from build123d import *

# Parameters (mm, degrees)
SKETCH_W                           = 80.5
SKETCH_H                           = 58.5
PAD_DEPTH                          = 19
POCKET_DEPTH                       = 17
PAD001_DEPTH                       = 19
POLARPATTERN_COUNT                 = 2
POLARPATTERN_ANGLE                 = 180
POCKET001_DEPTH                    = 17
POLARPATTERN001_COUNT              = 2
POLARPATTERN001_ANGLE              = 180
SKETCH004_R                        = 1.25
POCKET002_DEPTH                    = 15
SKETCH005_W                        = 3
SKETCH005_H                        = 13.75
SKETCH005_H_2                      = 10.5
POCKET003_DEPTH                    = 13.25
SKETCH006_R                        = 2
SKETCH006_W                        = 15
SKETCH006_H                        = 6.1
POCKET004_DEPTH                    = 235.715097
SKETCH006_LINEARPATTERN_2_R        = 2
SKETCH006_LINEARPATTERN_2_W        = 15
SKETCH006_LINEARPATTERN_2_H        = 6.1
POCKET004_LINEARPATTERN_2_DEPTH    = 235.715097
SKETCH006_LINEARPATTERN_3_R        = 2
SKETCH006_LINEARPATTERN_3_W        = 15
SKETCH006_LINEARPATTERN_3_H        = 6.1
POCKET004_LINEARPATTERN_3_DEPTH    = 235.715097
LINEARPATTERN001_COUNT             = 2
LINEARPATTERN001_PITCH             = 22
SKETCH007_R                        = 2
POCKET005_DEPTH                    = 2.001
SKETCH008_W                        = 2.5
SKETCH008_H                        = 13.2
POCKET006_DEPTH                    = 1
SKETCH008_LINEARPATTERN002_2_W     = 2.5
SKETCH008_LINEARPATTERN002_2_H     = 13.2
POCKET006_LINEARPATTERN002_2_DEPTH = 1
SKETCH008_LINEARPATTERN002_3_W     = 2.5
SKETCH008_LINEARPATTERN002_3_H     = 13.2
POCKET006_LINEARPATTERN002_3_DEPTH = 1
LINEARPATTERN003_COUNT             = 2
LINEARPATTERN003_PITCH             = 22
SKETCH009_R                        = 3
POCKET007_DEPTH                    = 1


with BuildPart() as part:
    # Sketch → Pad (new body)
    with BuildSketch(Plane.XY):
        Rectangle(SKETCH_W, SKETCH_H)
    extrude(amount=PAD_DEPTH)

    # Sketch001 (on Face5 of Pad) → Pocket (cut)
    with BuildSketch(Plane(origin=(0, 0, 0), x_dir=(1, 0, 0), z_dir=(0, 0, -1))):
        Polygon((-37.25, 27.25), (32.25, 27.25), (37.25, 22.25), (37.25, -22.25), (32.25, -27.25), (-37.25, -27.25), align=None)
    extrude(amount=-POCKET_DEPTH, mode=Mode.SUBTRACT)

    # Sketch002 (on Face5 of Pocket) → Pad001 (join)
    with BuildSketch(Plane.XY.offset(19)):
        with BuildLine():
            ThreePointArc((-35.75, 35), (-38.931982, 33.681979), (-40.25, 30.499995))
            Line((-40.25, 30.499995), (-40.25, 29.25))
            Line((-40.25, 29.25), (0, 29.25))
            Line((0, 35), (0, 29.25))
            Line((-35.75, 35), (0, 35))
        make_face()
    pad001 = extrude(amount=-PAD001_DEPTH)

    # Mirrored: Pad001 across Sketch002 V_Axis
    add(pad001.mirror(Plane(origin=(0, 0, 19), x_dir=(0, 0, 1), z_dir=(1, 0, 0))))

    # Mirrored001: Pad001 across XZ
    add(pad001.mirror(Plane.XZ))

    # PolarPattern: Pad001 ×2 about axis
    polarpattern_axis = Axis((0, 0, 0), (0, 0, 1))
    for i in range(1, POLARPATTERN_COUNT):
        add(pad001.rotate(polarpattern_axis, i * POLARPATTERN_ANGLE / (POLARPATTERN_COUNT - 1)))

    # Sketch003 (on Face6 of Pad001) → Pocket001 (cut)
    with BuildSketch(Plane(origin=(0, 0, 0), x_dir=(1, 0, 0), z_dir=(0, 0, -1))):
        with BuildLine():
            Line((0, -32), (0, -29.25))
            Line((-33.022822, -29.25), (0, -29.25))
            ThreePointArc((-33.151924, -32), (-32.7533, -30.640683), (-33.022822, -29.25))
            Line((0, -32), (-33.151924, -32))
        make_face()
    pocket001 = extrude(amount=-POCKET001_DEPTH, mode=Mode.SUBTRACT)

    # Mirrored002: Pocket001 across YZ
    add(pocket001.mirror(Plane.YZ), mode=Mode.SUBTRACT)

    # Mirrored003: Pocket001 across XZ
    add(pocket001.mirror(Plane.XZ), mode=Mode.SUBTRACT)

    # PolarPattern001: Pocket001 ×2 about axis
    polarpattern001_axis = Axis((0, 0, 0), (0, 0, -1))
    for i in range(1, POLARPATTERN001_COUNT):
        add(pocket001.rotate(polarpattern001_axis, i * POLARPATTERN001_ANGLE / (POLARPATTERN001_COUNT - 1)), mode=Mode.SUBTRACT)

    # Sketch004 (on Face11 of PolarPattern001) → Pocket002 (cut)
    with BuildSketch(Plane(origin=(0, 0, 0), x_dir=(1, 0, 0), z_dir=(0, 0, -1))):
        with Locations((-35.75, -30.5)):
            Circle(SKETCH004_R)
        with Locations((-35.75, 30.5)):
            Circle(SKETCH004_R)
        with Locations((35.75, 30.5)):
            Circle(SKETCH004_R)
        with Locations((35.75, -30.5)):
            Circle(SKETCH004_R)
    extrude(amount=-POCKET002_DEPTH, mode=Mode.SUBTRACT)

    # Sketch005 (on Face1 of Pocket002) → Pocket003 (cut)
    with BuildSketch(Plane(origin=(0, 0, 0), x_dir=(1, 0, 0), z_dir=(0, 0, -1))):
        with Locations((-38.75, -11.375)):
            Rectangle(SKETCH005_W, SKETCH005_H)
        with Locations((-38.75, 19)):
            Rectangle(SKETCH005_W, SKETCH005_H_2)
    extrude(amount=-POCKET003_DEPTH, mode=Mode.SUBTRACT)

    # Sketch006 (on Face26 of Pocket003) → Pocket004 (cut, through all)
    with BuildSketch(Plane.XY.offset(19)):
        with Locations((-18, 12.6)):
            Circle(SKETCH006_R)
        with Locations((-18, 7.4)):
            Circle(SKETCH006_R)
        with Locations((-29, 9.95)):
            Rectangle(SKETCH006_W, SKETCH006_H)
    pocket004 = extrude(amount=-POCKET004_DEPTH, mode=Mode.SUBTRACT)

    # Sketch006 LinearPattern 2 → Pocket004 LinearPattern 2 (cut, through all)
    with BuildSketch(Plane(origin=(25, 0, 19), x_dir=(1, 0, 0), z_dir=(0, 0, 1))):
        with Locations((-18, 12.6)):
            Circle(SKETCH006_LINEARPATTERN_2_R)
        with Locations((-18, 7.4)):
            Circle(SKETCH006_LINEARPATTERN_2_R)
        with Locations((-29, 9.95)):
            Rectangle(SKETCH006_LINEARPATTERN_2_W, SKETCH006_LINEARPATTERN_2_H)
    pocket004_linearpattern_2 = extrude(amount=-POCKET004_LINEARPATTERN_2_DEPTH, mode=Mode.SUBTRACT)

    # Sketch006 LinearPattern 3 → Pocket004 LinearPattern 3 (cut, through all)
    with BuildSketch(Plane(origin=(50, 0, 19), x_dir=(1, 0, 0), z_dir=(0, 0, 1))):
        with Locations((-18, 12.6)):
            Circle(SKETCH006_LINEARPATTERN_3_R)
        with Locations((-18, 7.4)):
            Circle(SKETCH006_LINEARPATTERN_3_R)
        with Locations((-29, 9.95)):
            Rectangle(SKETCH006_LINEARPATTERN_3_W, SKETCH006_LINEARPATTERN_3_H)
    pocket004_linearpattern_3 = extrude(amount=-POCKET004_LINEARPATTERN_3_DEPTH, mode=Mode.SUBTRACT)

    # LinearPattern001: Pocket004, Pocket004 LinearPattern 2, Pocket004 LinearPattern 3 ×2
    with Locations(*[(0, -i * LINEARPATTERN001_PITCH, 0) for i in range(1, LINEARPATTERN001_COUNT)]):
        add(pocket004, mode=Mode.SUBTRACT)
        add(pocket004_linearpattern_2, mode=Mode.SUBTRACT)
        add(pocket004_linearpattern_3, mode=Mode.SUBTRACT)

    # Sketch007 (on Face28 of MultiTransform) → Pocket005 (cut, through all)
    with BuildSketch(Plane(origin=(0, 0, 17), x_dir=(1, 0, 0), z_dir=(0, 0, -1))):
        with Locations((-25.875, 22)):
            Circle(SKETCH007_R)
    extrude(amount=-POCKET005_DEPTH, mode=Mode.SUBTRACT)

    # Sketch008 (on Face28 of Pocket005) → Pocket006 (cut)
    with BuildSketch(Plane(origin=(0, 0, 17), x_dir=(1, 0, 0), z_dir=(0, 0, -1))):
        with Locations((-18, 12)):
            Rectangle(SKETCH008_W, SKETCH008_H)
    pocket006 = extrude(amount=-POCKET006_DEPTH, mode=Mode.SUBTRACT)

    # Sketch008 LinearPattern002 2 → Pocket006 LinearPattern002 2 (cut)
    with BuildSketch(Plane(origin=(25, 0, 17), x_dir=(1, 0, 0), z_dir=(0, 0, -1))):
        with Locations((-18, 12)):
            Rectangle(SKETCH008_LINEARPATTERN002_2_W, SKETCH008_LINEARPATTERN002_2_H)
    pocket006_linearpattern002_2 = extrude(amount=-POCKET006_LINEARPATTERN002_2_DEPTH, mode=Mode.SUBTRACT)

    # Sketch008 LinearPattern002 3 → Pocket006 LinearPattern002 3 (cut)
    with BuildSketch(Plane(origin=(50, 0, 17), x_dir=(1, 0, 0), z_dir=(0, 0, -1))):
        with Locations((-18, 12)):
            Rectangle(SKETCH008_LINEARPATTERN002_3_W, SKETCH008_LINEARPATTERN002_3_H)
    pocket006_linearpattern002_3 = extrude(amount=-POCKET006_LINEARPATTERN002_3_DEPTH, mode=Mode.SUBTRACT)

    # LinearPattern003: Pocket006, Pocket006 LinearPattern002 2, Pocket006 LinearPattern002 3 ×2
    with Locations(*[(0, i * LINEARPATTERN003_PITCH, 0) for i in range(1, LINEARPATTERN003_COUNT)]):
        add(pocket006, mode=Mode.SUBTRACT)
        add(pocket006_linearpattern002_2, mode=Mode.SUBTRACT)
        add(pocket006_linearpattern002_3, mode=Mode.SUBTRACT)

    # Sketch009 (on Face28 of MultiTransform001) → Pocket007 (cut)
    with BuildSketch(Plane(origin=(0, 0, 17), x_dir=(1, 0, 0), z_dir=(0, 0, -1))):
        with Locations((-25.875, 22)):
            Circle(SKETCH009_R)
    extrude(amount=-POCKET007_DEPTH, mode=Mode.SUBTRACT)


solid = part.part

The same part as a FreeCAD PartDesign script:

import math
import FreeCAD as App
import Part
import Sketcher

V = App.Vector

doc = App.newDocument("Part")
body = doc.addObject("PartDesign::Body", "Body")

sketch1 = body.newObject("Sketcher::SketchObject", "Sketch")
sketch1.AttachmentSupport = (doc.getObject("XY_Plane"), [""])
sketch1.MapMode = "FlatFace"
sketch1.addGeometry(Part.LineSegment(V(-40, 29, 0), V(-40, -29, 0)), False)
sketch1.addGeometry(Part.LineSegment(V(-40, -29, 0), V(40, -29, 0)), False)
sketch1.addGeometry(Part.LineSegment(V(40, -29, 0), V(40, 29, 0)), False)
sketch1.addGeometry(Part.LineSegment(V(40, 29, 0), V(-40, 29, 0)), False)
sketch1.addConstraint(Sketcher.Constraint("Coincident", 0, 2, 1, 1))
sketch1.addConstraint(Sketcher.Constraint("Coincident", 1, 2, 2, 1))
sketch1.addConstraint(Sketcher.Constraint("Coincident", 2, 2, 3, 1))
sketch1.addConstraint(Sketcher.Constraint("Coincident", 3, 2, 0, 1))
sketch1.addConstraint(Sketcher.Constraint("Vertical", 0))
sketch1.addConstraint(Sketcher.Constraint("Horizontal", 1))
sketch1.addConstraint(Sketcher.Constraint("Vertical", 2))
sketch1.addConstraint(Sketcher.Constraint("Horizontal", 3))
sketch1.addConstraint(Sketcher.Constraint("Symmetric", 0, 2, 2, 2, -1, 1))
sketch1.addConstraint(Sketcher.Constraint("DistanceX", 1, 1, 1, 2, 80.5))
sketch1.addConstraint(Sketcher.Constraint("DistanceY", 0, 2, 0, 1, 58.5))
pad1 = body.newObject("PartDesign::Pad", "Pad")
pad1.Profile = sketch1
pad1.Length = 19

sketch2 = body.newObject("Sketcher::SketchObject", "Sketch001")
sketch2.AttachmentSupport = (doc.getObject("XY_Plane"), [""])
sketch2.MapMode = "FlatFace"
sketch2.addGeometry(Part.LineSegment(V(32, -27, 0), V(-37, -27, 0)), False)
sketch2.addGeometry(Part.LineSegment(V(-37, -27, 0), V(-37, 27, 0)), False)
sketch2.addGeometry(Part.LineSegment(V(-37, 27, 0), V(32, 27, 0)), False)
sketch2.addGeometry(Part.LineSegment(V(32, 27, 0), V(37, 22, 0)), False)
sketch2.addGeometry(Part.LineSegment(V(37, 22, 0), V(37, -22, 0)), False)
sketch2.addGeometry(Part.LineSegment(V(37, -22, 0), V(32, -27, 0)), False)
sketch2.addConstraint(Sketcher.Constraint("Coincident", 0, 2, 1, 1))
sketch2.addConstraint(Sketcher.Constraint("Coincident", 1, 2, 2, 1))
sketch2.addConstraint(Sketcher.Constraint("Coincident", 2, 2, 3, 1))
sketch2.addConstraint(Sketcher.Constraint("Coincident", 3, 2, 4, 1))
sketch2.addConstraint(Sketcher.Constraint("Coincident", 4, 2, 5, 1))
sketch2.addConstraint(Sketcher.Constraint("Coincident", 5, 2, 0, 1))
sketch2.addConstraint(Sketcher.Constraint("Horizontal", 0))
sketch2.addConstraint(Sketcher.Constraint("Vertical", 1))
sketch2.addConstraint(Sketcher.Constraint("Horizontal", 2))
sketch2.addConstraint(Sketcher.Constraint("Vertical", 4))
sketch2.addConstraint(Sketcher.Constraint("Symmetric", 2, 2, 5, 2, -1))
sketch2.addConstraint(Sketcher.Constraint("Perpendicular", 3, 5))
sketch2.addConstraint(Sketcher.Constraint("Equal", 3, 5))
sketch2.addConstraint(Sketcher.Constraint("DistanceX", 0, 2, 0, 1, 69.5))
sketch2.addConstraint(Sketcher.Constraint("DistanceY", 1, 1, 1, 2, 54.5))
sketch2.addConstraint(Sketcher.Constraint("DistanceY", 4, 2, 4, 1, 44.5))
sketch2.addConstraint(Sketcher.Constraint("DistanceX", 0, 2, -1, 1, 37.25))
pocket1 = body.newObject("PartDesign::Pocket", "Pocket")
pocket1.Profile = sketch2
pocket1.Length = 17
pocket1.Reversed = True

sketch3 = body.newObject("Sketcher::SketchObject", "Sketch002")
sketch3.AttachmentSupport = (doc.getObject("XY_Plane"), [""])
sketch3.MapMode = "FlatFace"
sketch3.AttachmentOffset = App.Placement(V(0, 0, 19), App.Rotation())
sketch3.addGeometry(Part.ArcOfCircle(Part.Circle(V(-35.7, 30.5, 0), V(0, 0, 1), 4.5), math.radians(90), math.radians(180)), False)
sketch3.addGeometry(Part.LineSegment(V(-40.2, 30.5, 0), V(-40.2, 29.2, 0)), False)
sketch3.addGeometry(Part.LineSegment(V(-40.2, 29.2, 0), V(0, 29.2, 0)), False)
sketch3.addGeometry(Part.LineSegment(V(0, 29.2, 0), V(0, 35, 0)), False)
sketch3.addGeometry(Part.LineSegment(V(0, 35, 0), V(-35.8, 35, 0)), False)
sketch3.addConstraint(Sketcher.Constraint("Tangent", 0, 2, 1, 1))
sketch3.addConstraint(Sketcher.Constraint("Coincident", 1, 2, 2, 1))
sketch3.addConstraint(Sketcher.Constraint("Coincident", 2, 2, 3, 1))
sketch3.addConstraint(Sketcher.Constraint("Coincident", 3, 2, 4, 1))
sketch3.addConstraint(Sketcher.Constraint("Tangent", 4, 2, 0, 1))
sketch3.addConstraint(Sketcher.Constraint("Vertical", 1))
sketch3.addConstraint(Sketcher.Constraint("Horizontal", 2))
sketch3.addConstraint(Sketcher.Constraint("Vertical", 3))
sketch3.addConstraint(Sketcher.Constraint("Horizontal", 4))
sketch3.addConstraint(Sketcher.Constraint("PointOnObject", 2, 2, -2))
sketch3.addConstraint(Sketcher.Constraint("Radius", 0, 4.5))
sketch3.addConstraint(Sketcher.Constraint("DistanceY", -1, 1, 3, 2, 35.0))
sketch3.addConstraint(Sketcher.Constraint("DistanceX", 2, 1, 2, 2, 40.25))
sketch3.addConstraint(Sketcher.Constraint("DistanceY", 3, 1, 3, 2, 5.75))
pad2 = body.newObject("PartDesign::Pad", "Pad001")
pad2.Profile = sketch3
pad2.Length = 19
pad2.Reversed = True
doc.recompute()

mirrored = body.newObject("PartDesign::Mirrored", "Mirrored")
mirrored.Originals = [pad2]
mirrored.MirrorPlane = (doc.getObject("YZ_Plane"), [""])
body.Tip = mirrored
doc.recompute()

mirrored2 = body.newObject("PartDesign::Mirrored", "Mirrored001")
mirrored2.Originals = [pad2]
mirrored2.MirrorPlane = (doc.getObject("XZ_Plane"), [""])
body.Tip = mirrored2
doc.recompute()

polarpattern = body.newObject("PartDesign::PolarPattern", "PolarPattern")
polarpattern.Originals = [pad2]
polarpattern.Axis = (doc.getObject("Z_Axis"), [""])
polarpattern.Angle = 360
polarpattern.Occurrences = 2
body.Tip = polarpattern

sketch4 = body.newObject("Sketcher::SketchObject", "Sketch003")
sketch4.AttachmentSupport = (doc.getObject("XY_Plane"), [""])
sketch4.MapMode = "FlatFace"
sketch4.addGeometry(Part.LineSegment(V(0, 32, 0), V(0, 29.2, 0)), False)
sketch4.addGeometry(Part.LineSegment(V(0, 29.2, 0), V(-33, 29.2, 0)), False)
sketch4.addGeometry(Part.ArcOfCircle(Part.Circle(V(-35.7, 30.5, 0), V(0, 0, 1), 3), math.radians(-25), math.radians(30)), False)
sketch4.addGeometry(Part.LineSegment(V(-33.2, 32, 0), V(0, 32, 0)), False)
sketch4.addConstraint(Sketcher.Constraint("Coincident", 0, 2, 1, 1))
sketch4.addConstraint(Sketcher.Constraint("Coincident", 1, 2, 2, 1))
sketch4.addConstraint(Sketcher.Constraint("Coincident", 2, 2, 3, 1))
sketch4.addConstraint(Sketcher.Constraint("Coincident", 3, 2, 0, 1))
sketch4.addConstraint(Sketcher.Constraint("Vertical", 0))
sketch4.addConstraint(Sketcher.Constraint("Horizontal", 1))
sketch4.addConstraint(Sketcher.Constraint("Horizontal", 3))
sketch4.addConstraint(Sketcher.Constraint("PointOnObject", 0, 2, -2))
sketch4.addConstraint(Sketcher.Constraint("DistanceY", -1, 1, 2, 2, 32.0))
sketch4.addConstraint(Sketcher.Constraint("DistanceY", 0, 2, 0, 1, 2.75))
sketch4.addConstraint(Sketcher.Constraint("DistanceY", -1, 1, 2, 3, 30.5))
sketch4.addConstraint(Sketcher.Constraint("Radius", 2, 2.999996))
sketch4.addConstraint(Sketcher.Constraint("DistanceX", 1, 2, 1, 1, 33.022822))
pocket2 = body.newObject("PartDesign::Pocket", "Pocket001")
pocket2.Profile = sketch4
pocket2.Length = 17
pocket2.Reversed = True
doc.recompute()

mirrored3 = body.newObject("PartDesign::Mirrored", "Mirrored002")
mirrored3.Originals = [pocket2]
mirrored3.MirrorPlane = (doc.getObject("YZ_Plane"), [""])
body.Tip = mirrored3
doc.recompute()

mirrored4 = body.newObject("PartDesign::Mirrored", "Mirrored003")
mirrored4.Originals = [pocket2]
mirrored4.MirrorPlane = (doc.getObject("XZ_Plane"), [""])
body.Tip = mirrored4
doc.recompute()

polarpattern2 = body.newObject("PartDesign::PolarPattern", "PolarPattern001")
polarpattern2.Originals = [pocket2]
polarpattern2.Axis = (doc.getObject("Z_Axis"), [""])
polarpattern2.Angle = 360
polarpattern2.Occurrences = 2
body.Tip = polarpattern2

sketch5 = body.newObject("Sketcher::SketchObject", "Sketch004")
sketch5.AttachmentSupport = (doc.getObject("XY_Plane"), [""])
sketch5.MapMode = "FlatFace"
sketch5.addGeometry(Part.Circle(V(-35.8, 30.5, 0), V(0, 0, 1), 1.2), False)
sketch5.addGeometry(Part.Circle(V(-35.8, -30.5, 0), V(0, 0, 1), 1.2), False)
sketch5.addGeometry(Part.Circle(V(35.8, -30.5, 0), V(0, 0, 1), 1.2), False)
sketch5.addGeometry(Part.Circle(V(35.8, 30.5, 0), V(0, 0, 1), 1.2), False)
sketch5.addConstraint(Sketcher.Constraint("Equal", 0, 1))
sketch5.addConstraint(Sketcher.Constraint("Equal", 1, 2))
sketch5.addConstraint(Sketcher.Constraint("Equal", 2, 3))
sketch5.addConstraint(Sketcher.Constraint("Symmetric", 0, 3, 2, 3, -1, 1))
sketch5.addConstraint(Sketcher.Constraint("Symmetric", 1, 3, 3, 3, -1, 1))
sketch5.addConstraint(Sketcher.Constraint("Symmetric", 1, 3, 2, 3, -2))
sketch5.addConstraint(Sketcher.Constraint("Diameter", 0, 2.5))
sketch5.addConstraint(Sketcher.Constraint("DistanceY", 1, 3, 0, 3, 61.0))
sketch5.addConstraint(Sketcher.Constraint("DistanceX", 1, 3, 2, 3, 71.5))
pocket3 = body.newObject("PartDesign::Pocket", "Pocket002")
pocket3.Profile = sketch5
pocket3.Length = 15
pocket3.Reversed = True

sketch6 = body.newObject("Sketcher::SketchObject", "Sketch005")
sketch6.AttachmentSupport = (doc.getObject("XY_Plane"), [""])
sketch6.MapMode = "FlatFace"
sketch6.addGeometry(Part.LineSegment(V(-40.2, 4.5, 0), V(-40.2, 18.2, 0)), False)
sketch6.addGeometry(Part.LineSegment(V(-40.2, 18.2, 0), V(-37.2, 18.2, 0)), False)
sketch6.addGeometry(Part.LineSegment(V(-37.2, 18.2, 0), V(-37.2, 4.5, 0)), False)
sketch6.addGeometry(Part.LineSegment(V(-37.2, 4.5, 0), V(-40.2, 4.5, 0)), False)
sketch6.addGeometry(Part.LineSegment(V(-40.2, -24.2, 0), V(-40.2, -13.8, 0)), False)
sketch6.addGeometry(Part.LineSegment(V(-40.2, -13.8, 0), V(-37.2, -13.8, 0)), False)
sketch6.addGeometry(Part.LineSegment(V(-37.2, -13.8, 0), V(-37.2, -24.2, 0)), False)
sketch6.addGeometry(Part.LineSegment(V(-37.2, -24.2, 0), V(-40.2, -24.2, 0)), False)
sketch6.addConstraint(Sketcher.Constraint("Coincident", 0, 2, 1, 1))
sketch6.addConstraint(Sketcher.Constraint("Coincident", 1, 2, 2, 1))
sketch6.addConstraint(Sketcher.Constraint("Coincident", 2, 2, 3, 1))
sketch6.addConstraint(Sketcher.Constraint("Coincident", 3, 2, 0, 1))
sketch6.addConstraint(Sketcher.Constraint("Coincident", 4, 2, 5, 1))
sketch6.addConstraint(Sketcher.Constraint("Coincident", 5, 2, 6, 1))
sketch6.addConstraint(Sketcher.Constraint("Coincident", 6, 2, 7, 1))
sketch6.addConstraint(Sketcher.Constraint("Coincident", 7, 2, 4, 1))
sketch6.addConstraint(Sketcher.Constraint("Vertical", 0))
sketch6.addConstraint(Sketcher.Constraint("Horizontal", 1))
sketch6.addConstraint(Sketcher.Constraint("Vertical", 2))
sketch6.addConstraint(Sketcher.Constraint("Horizontal", 3))
sketch6.addConstraint(Sketcher.Constraint("Vertical", 4))
sketch6.addConstraint(Sketcher.Constraint("Horizontal", 5))
sketch6.addConstraint(Sketcher.Constraint("Vertical", 6))
sketch6.addConstraint(Sketcher.Constraint("Horizontal", 7))
sketch6.addConstraint(Sketcher.Constraint("Vertical", 3, 2, 4, 2))
sketch6.addConstraint(Sketcher.Constraint("Vertical", 2, 2, 5, 2))
sketch6.addConstraint(Sketcher.Constraint("DistanceX", 1, 1, 1, 2, 3.0))
sketch6.addConstraint(Sketcher.Constraint("DistanceY", 4, 1, 4, 2, 10.5))
sketch6.addConstraint(Sketcher.Constraint("DistanceY", 4, 2, 0, 2, 32.0))
sketch6.addConstraint(Sketcher.Constraint("DistanceY", 0, 1, 0, 2, 13.75))
sketch6.addConstraint(Sketcher.Constraint("DistanceY", -1, 1, 2, 2, 4.5))
sketch6.addConstraint(Sketcher.Constraint("DistanceX", 0, 2, -1, 1, 40.25))
pocket4 = body.newObject("PartDesign::Pocket", "Pocket003")
pocket4.Profile = sketch6
pocket4.Length = 13.25
pocket4.Reversed = True

sketch7 = body.newObject("Sketcher::SketchObject", "Sketch006")
sketch7.AttachmentSupport = (doc.getObject("XY_Plane"), [""])
sketch7.MapMode = "FlatFace"
sketch7.AttachmentOffset = App.Placement(V(0, 0, 19), App.Rotation())
sketch7.addGeometry(Part.Circle(V(-18, 12.6, 0), V(0, 0, 1), 2), False)
sketch7.addGeometry(Part.Circle(V(-18, 7.4, 0), V(0, 0, 1), 2), False)
sketch7.addGeometry(Part.LineSegment(V(-36.5, 13, 0), V(-36.5, 6.9, 0)), False)
sketch7.addGeometry(Part.LineSegment(V(-36.5, 6.9, 0), V(-21.5, 6.9, 0)), False)
sketch7.addGeometry(Part.LineSegment(V(-21.5, 6.9, 0), V(-21.5, 13, 0)), False)
sketch7.addGeometry(Part.LineSegment(V(-21.5, 13, 0), V(-36.5, 13, 0)), False)
sketch7.addConstraint(Sketcher.Constraint("Coincident", 2, 2, 3, 1))
sketch7.addConstraint(Sketcher.Constraint("Coincident", 3, 2, 4, 1))
sketch7.addConstraint(Sketcher.Constraint("Coincident", 4, 2, 5, 1))
sketch7.addConstraint(Sketcher.Constraint("Coincident", 5, 2, 2, 1))
sketch7.addConstraint(Sketcher.Constraint("Vertical", 2))
sketch7.addConstraint(Sketcher.Constraint("Horizontal", 3))
sketch7.addConstraint(Sketcher.Constraint("Vertical", 4))
sketch7.addConstraint(Sketcher.Constraint("Horizontal", 5))
sketch7.addConstraint(Sketcher.Constraint("Equal", 0, 1))
sketch7.addConstraint(Sketcher.Constraint("Vertical", 0, 3, 1, 3))
sketch7.addConstraint(Sketcher.Constraint("Diameter", 0, 4.0))
sketch7.addConstraint(Sketcher.Constraint("DistanceX", 3, 1, 3, 2, 15.0))
sketch7.addConstraint(Sketcher.Constraint("DistanceY", 2, 2, 2, 1, 6.1))
sketch7.addConstraint(Sketcher.Constraint("DistanceX", 0, 3, -1, 1, 18.0))
sketch7.addConstraint(Sketcher.Constraint("DistanceY", -1, 1, 4, 2, 13.0))
sketch7.addConstraint(Sketcher.Constraint("DistanceY", -1, 1, 0, 3, 12.6))
sketch7.addConstraint(Sketcher.Constraint("DistanceY", -1, 1, 1, 3, 7.4))
sketch7.addConstraint(Sketcher.Constraint("DistanceX", 2, 2, -1, 1, 36.5))
pocket5 = body.newObject("PartDesign::Pocket", "Pocket004")
pocket5.Profile = sketch7
pocket5.Type = "ThroughAll"

sketch8 = body.newObject("Sketcher::SketchObject", "Sketch007")
sketch8.AttachmentSupport = (doc.getObject("XY_Plane"), [""])
sketch8.MapMode = "FlatFace"
sketch8.AttachmentOffset = App.Placement(V(0, 0, 19), App.Rotation())
sketch8.addGeometry(Part.Circle(V(7, 12.6, 0), V(0, 0, 1), 2), False)
sketch8.addGeometry(Part.Circle(V(7, 7.4, 0), V(0, 0, 1), 2), False)
sketch8.addGeometry(Part.LineSegment(V(-11.5, 13, 0), V(-11.5, 6.9, 0)), False)
sketch8.addGeometry(Part.LineSegment(V(-11.5, 6.9, 0), V(3.5, 6.9, 0)), False)
sketch8.addGeometry(Part.LineSegment(V(3.5, 6.9, 0), V(3.5, 13, 0)), False)
sketch8.addGeometry(Part.LineSegment(V(3.5, 13, 0), V(-11.5, 13, 0)), False)
sketch8.addConstraint(Sketcher.Constraint("Coincident", 2, 2, 3, 1))
sketch8.addConstraint(Sketcher.Constraint("Coincident", 3, 2, 4, 1))
sketch8.addConstraint(Sketcher.Constraint("Coincident", 4, 2, 5, 1))
sketch8.addConstraint(Sketcher.Constraint("Coincident", 5, 2, 2, 1))
sketch8.addConstraint(Sketcher.Constraint("Vertical", 2))
sketch8.addConstraint(Sketcher.Constraint("Horizontal", 3))
sketch8.addConstraint(Sketcher.Constraint("Vertical", 4))
sketch8.addConstraint(Sketcher.Constraint("Horizontal", 5))
sketch8.addConstraint(Sketcher.Constraint("Equal", 0, 1))
sketch8.addConstraint(Sketcher.Constraint("Vertical", 0, 3, 1, 3))
sketch8.addConstraint(Sketcher.Constraint("Diameter", 0, 4.0))
sketch8.addConstraint(Sketcher.Constraint("DistanceX", 3, 1, 3, 2, 15.0))
sketch8.addConstraint(Sketcher.Constraint("DistanceY", 2, 2, 2, 1, 6.1))
sketch8.addConstraint(Sketcher.Constraint("DistanceX", -1, 1, 0, 3, 7.0))
sketch8.addConstraint(Sketcher.Constraint("DistanceY", -1, 1, 4, 2, 13.0))
sketch8.addConstraint(Sketcher.Constraint("DistanceY", -1, 1, 0, 3, 12.6))
sketch8.addConstraint(Sketcher.Constraint("DistanceY", -1, 1, 1, 3, 7.4))
sketch8.addConstraint(Sketcher.Constraint("DistanceX", 2, 2, -1, 1, 11.5))
pocket6 = body.newObject("PartDesign::Pocket", "Pocket005")
pocket6.Profile = sketch8
pocket6.Type = "ThroughAll"

sketch9 = body.newObject("Sketcher::SketchObject", "Sketch008")
sketch9.AttachmentSupport = (doc.getObject("XY_Plane"), [""])
sketch9.MapMode = "FlatFace"
sketch9.AttachmentOffset = App.Placement(V(0, 0, 19), App.Rotation())
sketch9.addGeometry(Part.Circle(V(32, 12.6, 0), V(0, 0, 1), 2), False)
sketch9.addGeometry(Part.Circle(V(32, 7.4, 0), V(0, 0, 1), 2), False)
sketch9.addGeometry(Part.LineSegment(V(13.5, 13, 0), V(13.5, 6.9, 0)), False)
sketch9.addGeometry(Part.LineSegment(V(13.5, 6.9, 0), V(28.5, 6.9, 0)), False)
sketch9.addGeometry(Part.LineSegment(V(28.5, 6.9, 0), V(28.5, 13, 0)), False)
sketch9.addGeometry(Part.LineSegment(V(28.5, 13, 0), V(13.5, 13, 0)), False)
sketch9.addConstraint(Sketcher.Constraint("Coincident", 2, 2, 3, 1))
sketch9.addConstraint(Sketcher.Constraint("Coincident", 3, 2, 4, 1))
sketch9.addConstraint(Sketcher.Constraint("Coincident", 4, 2, 5, 1))
sketch9.addConstraint(Sketcher.Constraint("Coincident", 5, 2, 2, 1))
sketch9.addConstraint(Sketcher.Constraint("Vertical", 2))
sketch9.addConstraint(Sketcher.Constraint("Horizontal", 3))
sketch9.addConstraint(Sketcher.Constraint("Vertical", 4))
sketch9.addConstraint(Sketcher.Constraint("Horizontal", 5))
sketch9.addConstraint(Sketcher.Constraint("Equal", 0, 1))
sketch9.addConstraint(Sketcher.Constraint("Vertical", 0, 3, 1, 3))
sketch9.addConstraint(Sketcher.Constraint("Diameter", 0, 4.0))
sketch9.addConstraint(Sketcher.Constraint("DistanceX", 3, 1, 3, 2, 15.0))
sketch9.addConstraint(Sketcher.Constraint("DistanceY", 2, 2, 2, 1, 6.1))
sketch9.addConstraint(Sketcher.Constraint("DistanceX", -1, 1, 0, 3, 32.0))
sketch9.addConstraint(Sketcher.Constraint("DistanceY", -1, 1, 4, 2, 13.0))
sketch9.addConstraint(Sketcher.Constraint("DistanceY", -1, 1, 0, 3, 12.6))
sketch9.addConstraint(Sketcher.Constraint("DistanceY", -1, 1, 1, 3, 7.4))
sketch9.addConstraint(Sketcher.Constraint("DistanceX", -1, 1, 2, 2, 13.5))
pocket7 = body.newObject("PartDesign::Pocket", "Pocket006")
pocket7.Profile = sketch9
pocket7.Type = "ThroughAll"
doc.recompute()

linearpattern = body.newObject("PartDesign::LinearPattern", "LinearPattern")
linearpattern.Originals = [pocket5, pocket6, pocket7]
linearpattern.Direction = (doc.getObject("Y_Axis"), [""])
linearpattern.Mode = "offset"
linearpattern.Offset = 22
linearpattern.Occurrences = 2
linearpattern.Reversed = True
body.Tip = linearpattern

sketch10 = body.newObject("Sketcher::SketchObject", "Sketch009")
sketch10.AttachmentSupport = (doc.getObject("XY_Plane"), [""])
sketch10.MapMode = "FlatFace"
sketch10.AttachmentOffset = App.Placement(V(0, 0, 17), App.Rotation())
sketch10.addGeometry(Part.Circle(V(-25.9, -22, 0), V(0, 0, 1), 2), False)
sketch10.addConstraint(Sketcher.Constraint("Diameter", 0, 4.0))
sketch10.addConstraint(Sketcher.Constraint("DistanceY", 0, 3, -1, 1, 22.0))
sketch10.addConstraint(Sketcher.Constraint("DistanceX", 0, 3, -1, 1, 25.875))
pocket8 = body.newObject("PartDesign::Pocket", "Pocket007")
pocket8.Profile = sketch10
pocket8.Type = "ThroughAll"
pocket8.Reversed = True

sketch11 = body.newObject("Sketcher::SketchObject", "Sketch010")
sketch11.AttachmentSupport = (doc.getObject("XY_Plane"), [""])
sketch11.MapMode = "FlatFace"
sketch11.AttachmentOffset = App.Placement(V(0, 0, 17), App.Rotation())
sketch11.addGeometry(Part.LineSegment(V(-19.2, -18.6, 0), V(-19.2, -5.4, 0)), False)
sketch11.addGeometry(Part.LineSegment(V(-19.2, -5.4, 0), V(-16.8, -5.4, 0)), False)
sketch11.addGeometry(Part.LineSegment(V(-16.8, -5.4, 0), V(-16.8, -18.6, 0)), False)
sketch11.addGeometry(Part.LineSegment(V(-16.8, -18.6, 0), V(-19.2, -18.6, 0)), False)
sketch11.addConstraint(Sketcher.Constraint("Coincident", 0, 2, 1, 1))
sketch11.addConstraint(Sketcher.Constraint("Coincident", 1, 2, 2, 1))
sketch11.addConstraint(Sketcher.Constraint("Coincident", 2, 2, 3, 1))
sketch11.addConstraint(Sketcher.Constraint("Coincident", 3, 2, 0, 1))
sketch11.addConstraint(Sketcher.Constraint("Vertical", 0))
sketch11.addConstraint(Sketcher.Constraint("Horizontal", 1))
sketch11.addConstraint(Sketcher.Constraint("Vertical", 2))
sketch11.addConstraint(Sketcher.Constraint("Horizontal", 3))
sketch11.addConstraint(Sketcher.Constraint("DistanceX", 1, 1, 1, 2, 2.5))
sketch11.addConstraint(Sketcher.Constraint("DistanceY", 0, 1, 0, 2, 13.2))
sketch11.addConstraint(Sketcher.Constraint("DistanceY", 0, 2, -1, 1, 5.4))
sketch11.addConstraint(Sketcher.Constraint("DistanceX", 0, 2, -1, 1, 19.25))
pocket9 = body.newObject("PartDesign::Pocket", "Pocket008")
pocket9.Profile = sketch11
pocket9.Length = 1
pocket9.Reversed = True

sketch12 = body.newObject("Sketcher::SketchObject", "Sketch011")
sketch12.AttachmentSupport = (doc.getObject("XY_Plane"), [""])
sketch12.MapMode = "FlatFace"
sketch12.AttachmentOffset = App.Placement(V(0, 0, 17), App.Rotation())
sketch12.addGeometry(Part.LineSegment(V(5.8, -18.6, 0), V(5.8, -5.4, 0)), False)
sketch12.addGeometry(Part.LineSegment(V(5.8, -5.4, 0), V(8.2, -5.4, 0)), False)
sketch12.addGeometry(Part.LineSegment(V(8.2, -5.4, 0), V(8.2, -18.6, 0)), False)
sketch12.addGeometry(Part.LineSegment(V(8.2, -18.6, 0), V(5.8, -18.6, 0)), False)
sketch12.addConstraint(Sketcher.Constraint("Coincident", 0, 2, 1, 1))
sketch12.addConstraint(Sketcher.Constraint("Coincident", 1, 2, 2, 1))
sketch12.addConstraint(Sketcher.Constraint("Coincident", 2, 2, 3, 1))
sketch12.addConstraint(Sketcher.Constraint("Coincident", 3, 2, 0, 1))
sketch12.addConstraint(Sketcher.Constraint("Vertical", 0))
sketch12.addConstraint(Sketcher.Constraint("Horizontal", 1))
sketch12.addConstraint(Sketcher.Constraint("Vertical", 2))
sketch12.addConstraint(Sketcher.Constraint("Horizontal", 3))
sketch12.addConstraint(Sketcher.Constraint("DistanceX", 1, 1, 1, 2, 2.5))
sketch12.addConstraint(Sketcher.Constraint("DistanceY", 0, 1, 0, 2, 13.2))
sketch12.addConstraint(Sketcher.Constraint("DistanceY", 0, 2, -1, 1, 5.4))
sketch12.addConstraint(Sketcher.Constraint("DistanceX", -1, 1, 0, 2, 5.75))
pocket10 = body.newObject("PartDesign::Pocket", "Pocket009")
pocket10.Profile = sketch12
pocket10.Length = 1
pocket10.Reversed = True

sketch13 = body.newObject("Sketcher::SketchObject", "Sketch012")
sketch13.AttachmentSupport = (doc.getObject("XY_Plane"), [""])
sketch13.MapMode = "FlatFace"
sketch13.AttachmentOffset = App.Placement(V(0, 0, 17), App.Rotation())
sketch13.addGeometry(Part.LineSegment(V(30.8, -18.6, 0), V(30.8, -5.4, 0)), False)
sketch13.addGeometry(Part.LineSegment(V(30.8, -5.4, 0), V(33.2, -5.4, 0)), False)
sketch13.addGeometry(Part.LineSegment(V(33.2, -5.4, 0), V(33.2, -18.6, 0)), False)
sketch13.addGeometry(Part.LineSegment(V(33.2, -18.6, 0), V(30.8, -18.6, 0)), False)
sketch13.addConstraint(Sketcher.Constraint("Coincident", 0, 2, 1, 1))
sketch13.addConstraint(Sketcher.Constraint("Coincident", 1, 2, 2, 1))
sketch13.addConstraint(Sketcher.Constraint("Coincident", 2, 2, 3, 1))
sketch13.addConstraint(Sketcher.Constraint("Coincident", 3, 2, 0, 1))
sketch13.addConstraint(Sketcher.Constraint("Vertical", 0))
sketch13.addConstraint(Sketcher.Constraint("Horizontal", 1))
sketch13.addConstraint(Sketcher.Constraint("Vertical", 2))
sketch13.addConstraint(Sketcher.Constraint("Horizontal", 3))
sketch13.addConstraint(Sketcher.Constraint("DistanceX", 1, 1, 1, 2, 2.5))
sketch13.addConstraint(Sketcher.Constraint("DistanceY", 0, 1, 0, 2, 13.2))
sketch13.addConstraint(Sketcher.Constraint("DistanceY", 0, 2, -1, 1, 5.4))
sketch13.addConstraint(Sketcher.Constraint("DistanceX", -1, 1, 0, 2, 30.75))
pocket11 = body.newObject("PartDesign::Pocket", "Pocket010")
pocket11.Profile = sketch13
pocket11.Length = 1
pocket11.Reversed = True
doc.recompute()

linearpattern2 = body.newObject("PartDesign::LinearPattern", "LinearPattern001")
linearpattern2.Originals = [pocket9, pocket10, pocket11]
linearpattern2.Direction = (doc.getObject("Y_Axis"), [""])
linearpattern2.Mode = "offset"
linearpattern2.Offset = 22
linearpattern2.Occurrences = 2
body.Tip = linearpattern2

sketch14 = body.newObject("Sketcher::SketchObject", "Sketch013")
sketch14.AttachmentSupport = (doc.getObject("XY_Plane"), [""])
sketch14.MapMode = "FlatFace"
sketch14.AttachmentOffset = App.Placement(V(0, 0, 17), App.Rotation())
sketch14.addGeometry(Part.Circle(V(-25.9, -22, 0), V(0, 0, 1), 3), False)
sketch14.addConstraint(Sketcher.Constraint("Diameter", 0, 6.0))
sketch14.addConstraint(Sketcher.Constraint("DistanceY", 0, 3, -1, 1, 22.0))
sketch14.addConstraint(Sketcher.Constraint("DistanceX", 0, 3, -1, 1, 25.875))
pocket12 = body.newObject("PartDesign::Pocket", "Pocket011")
pocket12.Profile = sketch14
pocket12.Length = 1
pocket12.Reversed = True

doc.recompute()
